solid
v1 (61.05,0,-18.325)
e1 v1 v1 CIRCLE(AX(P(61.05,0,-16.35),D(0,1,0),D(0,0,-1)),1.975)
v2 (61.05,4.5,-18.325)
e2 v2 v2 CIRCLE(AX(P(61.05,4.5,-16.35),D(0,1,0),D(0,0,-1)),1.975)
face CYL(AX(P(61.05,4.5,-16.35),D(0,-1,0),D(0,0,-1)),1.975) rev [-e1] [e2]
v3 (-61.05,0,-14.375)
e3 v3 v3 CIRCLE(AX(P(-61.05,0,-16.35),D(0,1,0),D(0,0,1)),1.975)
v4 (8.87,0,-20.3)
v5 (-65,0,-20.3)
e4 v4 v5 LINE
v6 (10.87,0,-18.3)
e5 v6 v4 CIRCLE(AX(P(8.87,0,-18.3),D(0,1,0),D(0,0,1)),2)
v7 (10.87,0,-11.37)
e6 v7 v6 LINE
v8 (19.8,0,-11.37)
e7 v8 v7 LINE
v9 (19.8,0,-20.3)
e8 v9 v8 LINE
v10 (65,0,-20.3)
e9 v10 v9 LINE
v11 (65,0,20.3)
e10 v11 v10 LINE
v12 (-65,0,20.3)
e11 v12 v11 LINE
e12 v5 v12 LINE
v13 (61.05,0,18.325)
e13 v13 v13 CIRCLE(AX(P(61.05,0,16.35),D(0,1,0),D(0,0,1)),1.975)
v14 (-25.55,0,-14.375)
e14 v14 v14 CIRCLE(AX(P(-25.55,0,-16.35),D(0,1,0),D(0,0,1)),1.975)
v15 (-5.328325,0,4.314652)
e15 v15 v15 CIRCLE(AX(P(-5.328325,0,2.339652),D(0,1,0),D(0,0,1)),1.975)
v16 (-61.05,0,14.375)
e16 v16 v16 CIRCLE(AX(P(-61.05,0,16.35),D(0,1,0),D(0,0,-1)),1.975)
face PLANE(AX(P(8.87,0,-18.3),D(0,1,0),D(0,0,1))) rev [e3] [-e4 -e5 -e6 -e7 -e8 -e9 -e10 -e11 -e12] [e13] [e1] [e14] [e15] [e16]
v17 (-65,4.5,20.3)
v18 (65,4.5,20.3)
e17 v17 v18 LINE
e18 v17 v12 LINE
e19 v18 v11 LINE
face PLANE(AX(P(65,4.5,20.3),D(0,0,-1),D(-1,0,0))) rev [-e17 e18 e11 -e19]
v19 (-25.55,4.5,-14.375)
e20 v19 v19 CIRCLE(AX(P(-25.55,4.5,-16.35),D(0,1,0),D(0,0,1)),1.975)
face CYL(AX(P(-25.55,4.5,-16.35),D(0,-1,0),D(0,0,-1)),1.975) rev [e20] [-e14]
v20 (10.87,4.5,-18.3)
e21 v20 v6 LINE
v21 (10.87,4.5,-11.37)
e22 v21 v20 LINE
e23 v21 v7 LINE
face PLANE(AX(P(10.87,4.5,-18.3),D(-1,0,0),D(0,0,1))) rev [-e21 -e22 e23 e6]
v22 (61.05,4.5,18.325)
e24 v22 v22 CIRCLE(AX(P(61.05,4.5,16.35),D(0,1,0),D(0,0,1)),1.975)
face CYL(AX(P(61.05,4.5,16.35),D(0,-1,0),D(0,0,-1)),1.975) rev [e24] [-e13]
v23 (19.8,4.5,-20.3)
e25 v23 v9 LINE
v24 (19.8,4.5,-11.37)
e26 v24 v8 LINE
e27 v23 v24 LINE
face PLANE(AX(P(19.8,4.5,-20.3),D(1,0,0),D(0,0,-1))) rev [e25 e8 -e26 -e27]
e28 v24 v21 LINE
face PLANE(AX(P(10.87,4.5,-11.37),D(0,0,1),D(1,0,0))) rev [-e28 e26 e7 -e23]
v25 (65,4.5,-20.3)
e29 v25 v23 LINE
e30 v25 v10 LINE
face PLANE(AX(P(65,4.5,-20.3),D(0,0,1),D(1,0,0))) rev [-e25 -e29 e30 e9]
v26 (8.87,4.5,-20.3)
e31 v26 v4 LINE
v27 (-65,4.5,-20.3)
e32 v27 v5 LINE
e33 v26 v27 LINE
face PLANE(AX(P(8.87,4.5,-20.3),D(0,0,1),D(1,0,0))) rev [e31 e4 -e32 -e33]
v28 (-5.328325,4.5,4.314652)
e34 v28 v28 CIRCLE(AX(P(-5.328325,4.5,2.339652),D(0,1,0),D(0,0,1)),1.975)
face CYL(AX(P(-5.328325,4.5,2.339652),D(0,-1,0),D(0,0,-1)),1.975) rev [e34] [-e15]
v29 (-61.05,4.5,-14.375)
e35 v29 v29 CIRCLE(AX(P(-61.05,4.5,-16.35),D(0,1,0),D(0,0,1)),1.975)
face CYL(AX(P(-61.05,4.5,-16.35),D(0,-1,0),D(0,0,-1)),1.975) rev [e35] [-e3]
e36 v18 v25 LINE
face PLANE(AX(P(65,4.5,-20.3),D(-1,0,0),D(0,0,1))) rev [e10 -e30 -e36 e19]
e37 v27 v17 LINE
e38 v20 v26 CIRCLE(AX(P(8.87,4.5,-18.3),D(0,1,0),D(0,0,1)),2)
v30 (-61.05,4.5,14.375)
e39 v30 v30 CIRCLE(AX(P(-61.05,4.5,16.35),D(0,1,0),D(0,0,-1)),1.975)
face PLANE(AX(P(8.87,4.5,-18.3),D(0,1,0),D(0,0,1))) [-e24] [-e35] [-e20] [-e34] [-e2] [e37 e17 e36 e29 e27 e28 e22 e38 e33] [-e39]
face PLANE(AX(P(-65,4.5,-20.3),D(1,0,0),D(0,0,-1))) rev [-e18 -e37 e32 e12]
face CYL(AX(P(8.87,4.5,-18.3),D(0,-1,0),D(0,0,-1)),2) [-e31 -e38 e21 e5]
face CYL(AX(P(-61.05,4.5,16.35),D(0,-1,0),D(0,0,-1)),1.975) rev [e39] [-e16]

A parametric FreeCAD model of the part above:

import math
import FreeCAD as App
import Part
import Sketcher

V = App.Vector
Q = App.Units.Quantity

doc = App.newDocument("Part")
body = doc.addObject("PartDesign::Body", "Body")

# Sketch on XZ plane
sketch1 = body.newObject("Sketcher::SketchObject", "Sketch")
sketch1.AttachmentSupport = (doc.getObject("XZ_Plane"), [""])
sketch1.MapMode = "FlatFace"
sketch1.addGeometry([
    Part.LineSegment(V(65, -20.3, 0), V(19.8, -20.3, 0)),  # 0
    Part.LineSegment(V(19.8, -20.3, 0), V(19.8, -11.4, 0)),  # 1
    Part.LineSegment(V(19.8, -11.4, 0), V(10.9, -11.4, 0)),  # 2
    Part.LineSegment(V(10.9, -11.4, 0), V(10.9, -18.3, 0)),  # 3
    Part.ArcOfCircle(Part.Circle(V(8.9, -18.3, 0), V(0, 0, 1), 2), math.radians(-90), math.radians(0)),  # 4
    Part.LineSegment(V(8.9, -20.3, 0), V(-65, -20.3, 0)),  # 5
    Part.LineSegment(V(-65, -20.3, 0), V(-65, 20.3, 0)),  # 6
    Part.LineSegment(V(-65, 20.3, 0), V(65, 20.3, 0)),  # 7
    Part.LineSegment(V(65, 20.3, 0), V(65, -20.3, 0)),  # 8
    Part.Circle(V(-61, 16.4, 0), V(0, 0, 1), 2),  # 9
    Part.Circle(V(-5.3, 2.3, 0), V(0, 0, 1), 2),  # 10
    Part.Circle(V(61, 16.4, 0), V(0, 0, 1), 2),  # 11
    Part.Circle(V(-61, -16.4, 0), V(0, 0, 1), 2),  # 12
    Part.Circle(V(-25.6, -16.4, 0), V(0, 0, 1), 2),  # 13
    Part.Circle(V(61, -16.4, 0), V(0, 0, 1), 2),  # 14
], False)
sketch1.addConstraint([
    Sketcher.Constraint("Coincident", 0, 2, 1, 1),
    Sketcher.Constraint("Coincident", 1, 2, 2, 1),
    Sketcher.Constraint("Coincident", 2, 2, 3, 1),
    Sketcher.Constraint("Tangent", 3, 2, 4, 2),
    Sketcher.Constraint("Tangent", 4, 1, 5, 1),
    Sketcher.Constraint("Coincident", 5, 2, 6, 1),
    Sketcher.Constraint("Coincident", 6, 2, 7, 1),
    Sketcher.Constraint("Coincident", 7, 2, 8, 1),
    Sketcher.Constraint("Coincident", 8, 2, 0, 1),
    Sketcher.Constraint("Horizontal", 0),
    Sketcher.Constraint("Vertical", 1),
    Sketcher.Constraint("Horizontal", 2),
    Sketcher.Constraint("Vertical", 3),
    Sketcher.Constraint("Horizontal", 5),
    Sketcher.Constraint("Vertical", 6),
    Sketcher.Constraint("Horizontal", 7),
    Sketcher.Constraint("Vertical", 8),
    Sketcher.Constraint("Equal", 9, 10),
    Sketcher.Constraint("Equal", 10, 11),
    Sketcher.Constraint("Equal", 11, 12),
    Sketcher.Constraint("Equal", 12, 13),
    Sketcher.Constraint("Equal", 13, 14),
    Sketcher.Constraint("Symmetric", 11, 3, 12, 3, -1, 1),
    Sketcher.Constraint("Symmetric", 9, 3, 14, 3, -1, 1),
    Sketcher.Constraint("Symmetric", 5, 2, 7, 2, -1, 1),
    Sketcher.Constraint("Symmetric", 9, 3, 11, 3, -2),
    Sketcher.Constraint("Horizontal", 12, 3, 13, 3),
    Sketcher.Constraint("Horizontal", 0, 2, 4, 1),
    Sketcher.Constraint("Equal", 2, 1),
    Sketcher.Constraint("Radius", 4, Q("2 mm")),
    Sketcher.Constraint("Diameter", 9, Q("3.95 mm")),
    Sketcher.Constraint("DistanceX", 7, 1, 7, 2, Q("130 mm")),
    Sketcher.Constraint("DistanceX", 0, 2, 0, 1, Q("45.2 mm")),
    Sketcher.Constraint("DistanceY", 6, 1, 6, 2, Q("40.6 mm")),
    Sketcher.Constraint("DistanceX", 2, 2, 2, 1, Q("8.93 mm")),
    Sketcher.Constraint("DistanceX", 9, 3, 11, 3, Q("122.1 mm")),
    Sketcher.Constraint("DistanceY", 12, 3, 9, 3, Q("32.7 mm")),
    Sketcher.Constraint("DistanceX", 12, 3, 13, 3, Q("35.5 mm")),
    Sketcher.Constraint("DistanceY", -1, 1, 10, 3, Q("2.339652 mm")),
    Sketcher.Constraint("DistanceX", 10, 3, -1, 1, Q("5.328325 mm")),
])
pad1 = body.newObject("PartDesign::Pad", "Pad")
pad1.Profile = sketch1
pad1.Length = 4.5
pad1.Reversed = True

doc.recompute()
